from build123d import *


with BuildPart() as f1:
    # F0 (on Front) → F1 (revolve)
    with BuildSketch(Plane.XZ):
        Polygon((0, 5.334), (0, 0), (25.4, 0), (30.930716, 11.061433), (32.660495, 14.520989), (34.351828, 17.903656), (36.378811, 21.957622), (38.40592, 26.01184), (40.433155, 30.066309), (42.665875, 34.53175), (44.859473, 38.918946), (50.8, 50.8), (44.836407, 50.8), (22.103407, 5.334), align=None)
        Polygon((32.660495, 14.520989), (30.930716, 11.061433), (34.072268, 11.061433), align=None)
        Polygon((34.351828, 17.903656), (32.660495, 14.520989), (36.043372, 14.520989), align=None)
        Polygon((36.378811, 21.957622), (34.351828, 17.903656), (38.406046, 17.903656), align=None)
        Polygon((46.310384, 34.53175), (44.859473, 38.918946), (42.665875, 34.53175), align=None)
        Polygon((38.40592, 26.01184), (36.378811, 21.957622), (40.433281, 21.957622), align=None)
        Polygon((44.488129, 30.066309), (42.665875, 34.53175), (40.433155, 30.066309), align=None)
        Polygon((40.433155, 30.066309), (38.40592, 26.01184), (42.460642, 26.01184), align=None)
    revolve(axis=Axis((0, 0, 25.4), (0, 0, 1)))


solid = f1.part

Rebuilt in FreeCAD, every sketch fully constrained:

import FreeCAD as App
import Part
import Sketcher
from FreeCAD import Vector
Q = App.Units.Quantity

doc = App.newDocument("Part")
body = doc.addObject("PartDesign::Body", "Body")

# Sketch on XZ plane
sketch1 = body.newObject("Sketcher::SketchObject", "Sketch")
sketch1.AttachmentSupport = (doc.getObject("XZ_Plane"), [""])
sketch1.MapMode = "FlatFace"
sketch1.addGeometry([
    Part.LineSegment(Vector(0, 5.3, 0), Vector(0, 0, 0)),  # 0
    Part.LineSegment(Vector(0, 0, 0), Vector(25.4, 0, 0)),  # 1
    Part.LineSegment(Vector(25.4, 0, 0), Vector(30.9, 11.1, 0)),  # 2
    Part.LineSegment(Vector(30.9, 11.1, 0), Vector(34.1, 11.1, 0)),  # 3
    Part.LineSegment(Vector(34.1, 11.1, 0), Vector(32.7, 14.5, 0)),  # 4
    Part.LineSegment(Vector(32.7, 14.5, 0), Vector(36, 14.5, 0)),  # 5
    Part.LineSegment(Vector(36, 14.5, 0), Vector(34.4, 17.9, 0)),  # 6
    Part.LineSegment(Vector(34.4, 17.9, 0), Vector(38.4, 17.9, 0)),  # 7
    Part.LineSegment(Vector(38.4, 17.9, 0), Vector(36.4, 22, 0)),  # 8
    Part.LineSegment(Vector(36.4, 22, 0), Vector(40.4, 22, 0)),  # 9
    Part.LineSegment(Vector(40.4, 22, 0), Vector(38.4, 26, 0)),  # 10
    Part.LineSegment(Vector(38.4, 26, 0), Vector(42.5, 26, 0)),  # 11
    Part.LineSegment(Vector(42.5, 26, 0), Vector(40.4, 30.1, 0)),  # 12
    Part.LineSegment(Vector(40.4, 30.1, 0), Vector(44.5, 30.1, 0)),  # 13
    Part.LineSegment(Vector(44.5, 30.1, 0), Vector(42.7, 34.5, 0)),  # 14
    Part.LineSegment(Vector(42.7, 34.5, 0), Vector(46.3, 34.5, 0)),  # 15
    Part.LineSegment(Vector(46.3, 34.5, 0), Vector(44.9, 38.9, 0)),  # 16
    Part.LineSegment(Vector(44.9, 38.9, 0), Vector(50.8, 50.8, 0)),  # 17
    Part.LineSegment(Vector(50.8, 50.8, 0), Vector(44.8, 50.8, 0)),  # 18
    Part.LineSegment(Vector(44.8, 50.8, 0), Vector(22.1, 5.3, 0)),  # 19
    Part.LineSegment(Vector(22.1, 5.3, 0), Vector(0, 5.3, 0)),  # 20
], False)
sketch1.addConstraint([
    Sketcher.Constraint("Coincident", 0, 2, 1, 1),
    Sketcher.Constraint("Coincident", 1, 2, 2, 1),
    Sketcher.Constraint("Coincident", 2, 2, 3, 1),
    Sketcher.Constraint("Coincident", 3, 2, 4, 1),
    Sketcher.Constraint("Coincident", 4, 2, 5, 1),
    Sketcher.Constraint("Coincident", 5, 2, 6, 1),
    Sketcher.Constraint("Coincident", 6, 2, 7, 1),
    Sketcher.Constraint("Coincident", 7, 2, 8, 1),
    Sketcher.Constraint("Coincident", 8, 2, 9, 1),
    Sketcher.Constraint("Coincident", 9, 2, 10, 1),
    Sketcher.Constraint("Coincident", 10, 2, 11, 1),
    Sketcher.Constraint("Coincident", 11, 2, 12, 1),
    Sketcher.Constraint("Coincident", 12, 2, 13, 1),
    Sketcher.Constraint("Coincident", 13, 2, 14, 1),
    Sketcher.Constraint("Coincident", 14, 2, 15, 1),
    Sketcher.Constraint("Coincident", 15, 2, 16, 1),
    Sketcher.Constraint("Coincident", 16, 2, 17, 1),
    Sketcher.Constraint("Coincident", 17, 2, 18, 1),
    Sketcher.Constraint("Coincident", 18, 2, 19, 1),
    Sketcher.Constraint("Coincident", 19, 2, 20, 1),
    Sketcher.Constraint("Coincident", 20, 2, 0, 1),
    Sketcher.Constraint("Vertical", 0),
    Sketcher.Constraint("Horizontal", 1),
    Sketcher.Constraint("Horizontal", 3),
    Sketcher.Constraint("Horizontal", 5),
    Sketcher.Constraint("Horizontal", 7),
    Sketcher.Constraint("Horizontal", 9),
    Sketcher.Constraint("Horizontal", 11),
    Sketcher.Constraint("Horizontal", 13),
    Sketcher.Constraint("Horizontal", 15),
    Sketcher.Constraint("Horizontal", 18),
    Sketcher.Constraint("Horizontal", 20),
    Sketcher.Constraint("Coincident", 0, 2, -1, 1),
    Sketcher.Constraint("Parallel", 6, 8),
    Sketcher.Constraint("Parallel", 8, 10),
    Sketcher.Constraint("Parallel", 10, 12),
    Sketcher.Constraint("Parallel", 4, 14),
    Sketcher.Constraint("Parallel", 2, 17),
    Sketcher.Constraint("Parallel", 17, 19),
    Sketcher.Constraint("DistanceX", 1, 1, 1, 2, Q("1 in")),
    Sketcher.Constraint("DistanceX", -1, 1, 17, 2, Q("2 in")),
    Sketcher.Constraint("DistanceY", -1, 1, 17, 2, Q("2 in")),
    Sketcher.Constraint("DistanceY", 0, 2, 0, 1, Q("0.21 in")),
    Sketcher.Constraint("DistanceX", 7, 1, 7, 2, Q("4.054218 mm")),
    Sketcher.Constraint("DistanceX", 9, 1, 9, 2, Q("4.05447 mm")),
    Sketcher.Constraint("DistanceX", 11, 1, 11, 2, Q("4.054722 mm")),
    Sketcher.Constraint("DistanceX", 15, 1, 15, 2, Q("3.644509 mm")),
    Sketcher.Constraint("DistanceX", 14, 2, 16, 2, Q("2.193598 mm")),
    Sketcher.Constraint("Distance", 6, Q("3.782031 mm")),
    Sketcher.Constraint("Distance", 16, Q("4.620891 mm")),
    Sketcher.Constraint("DistanceX", 3, 1, 3, 2, Q("3.141552 mm")),
    Sketcher.Constraint("DistanceX", 5, 1, 5, 2, Q("3.382877 mm")),
    Sketcher.Constraint("DistanceX", 13, 1, 13, 2, Q("4.054974 mm")),
    Sketcher.Constraint("DistanceX", 18, 2, 18, 1, Q("5.963593 mm")),
    Sketcher.Constraint("DistanceX", 20, 2, 20, 1, Q("22.103407 mm")),
    Sketcher.Constraint("DistanceY", -1, 1, 4, 2, Q("14.520989 mm")),
    Sketcher.Constraint("DistanceX", -1, 1, 5, 2, Q("36.043372 mm")),
    Sketcher.Constraint("DistanceX", -1, 1, 8, 2, Q("36.378811 mm")),
    Sketcher.Constraint("DistanceX", -1, 1, 10, 2, Q("38.40592 mm")),
    Sketcher.Constraint("DistanceY", -1, 1, 10, 2, Q("26.01184 mm")),
    Sketcher.Constraint("DistanceY", -1, 1, 12, 2, Q("30.066309 mm")),
    Sketcher.Constraint("DistanceY", -1, 1, 14, 2, Q("34.53175 mm")),
])
revolution = body.newObject("PartDesign::Revolution", "Revolution")
revolution.Profile = sketch1
revolution.ReferenceAxis = (sketch1, ["V_Axis"])
revolution.Angle = 360

doc.recompute()
